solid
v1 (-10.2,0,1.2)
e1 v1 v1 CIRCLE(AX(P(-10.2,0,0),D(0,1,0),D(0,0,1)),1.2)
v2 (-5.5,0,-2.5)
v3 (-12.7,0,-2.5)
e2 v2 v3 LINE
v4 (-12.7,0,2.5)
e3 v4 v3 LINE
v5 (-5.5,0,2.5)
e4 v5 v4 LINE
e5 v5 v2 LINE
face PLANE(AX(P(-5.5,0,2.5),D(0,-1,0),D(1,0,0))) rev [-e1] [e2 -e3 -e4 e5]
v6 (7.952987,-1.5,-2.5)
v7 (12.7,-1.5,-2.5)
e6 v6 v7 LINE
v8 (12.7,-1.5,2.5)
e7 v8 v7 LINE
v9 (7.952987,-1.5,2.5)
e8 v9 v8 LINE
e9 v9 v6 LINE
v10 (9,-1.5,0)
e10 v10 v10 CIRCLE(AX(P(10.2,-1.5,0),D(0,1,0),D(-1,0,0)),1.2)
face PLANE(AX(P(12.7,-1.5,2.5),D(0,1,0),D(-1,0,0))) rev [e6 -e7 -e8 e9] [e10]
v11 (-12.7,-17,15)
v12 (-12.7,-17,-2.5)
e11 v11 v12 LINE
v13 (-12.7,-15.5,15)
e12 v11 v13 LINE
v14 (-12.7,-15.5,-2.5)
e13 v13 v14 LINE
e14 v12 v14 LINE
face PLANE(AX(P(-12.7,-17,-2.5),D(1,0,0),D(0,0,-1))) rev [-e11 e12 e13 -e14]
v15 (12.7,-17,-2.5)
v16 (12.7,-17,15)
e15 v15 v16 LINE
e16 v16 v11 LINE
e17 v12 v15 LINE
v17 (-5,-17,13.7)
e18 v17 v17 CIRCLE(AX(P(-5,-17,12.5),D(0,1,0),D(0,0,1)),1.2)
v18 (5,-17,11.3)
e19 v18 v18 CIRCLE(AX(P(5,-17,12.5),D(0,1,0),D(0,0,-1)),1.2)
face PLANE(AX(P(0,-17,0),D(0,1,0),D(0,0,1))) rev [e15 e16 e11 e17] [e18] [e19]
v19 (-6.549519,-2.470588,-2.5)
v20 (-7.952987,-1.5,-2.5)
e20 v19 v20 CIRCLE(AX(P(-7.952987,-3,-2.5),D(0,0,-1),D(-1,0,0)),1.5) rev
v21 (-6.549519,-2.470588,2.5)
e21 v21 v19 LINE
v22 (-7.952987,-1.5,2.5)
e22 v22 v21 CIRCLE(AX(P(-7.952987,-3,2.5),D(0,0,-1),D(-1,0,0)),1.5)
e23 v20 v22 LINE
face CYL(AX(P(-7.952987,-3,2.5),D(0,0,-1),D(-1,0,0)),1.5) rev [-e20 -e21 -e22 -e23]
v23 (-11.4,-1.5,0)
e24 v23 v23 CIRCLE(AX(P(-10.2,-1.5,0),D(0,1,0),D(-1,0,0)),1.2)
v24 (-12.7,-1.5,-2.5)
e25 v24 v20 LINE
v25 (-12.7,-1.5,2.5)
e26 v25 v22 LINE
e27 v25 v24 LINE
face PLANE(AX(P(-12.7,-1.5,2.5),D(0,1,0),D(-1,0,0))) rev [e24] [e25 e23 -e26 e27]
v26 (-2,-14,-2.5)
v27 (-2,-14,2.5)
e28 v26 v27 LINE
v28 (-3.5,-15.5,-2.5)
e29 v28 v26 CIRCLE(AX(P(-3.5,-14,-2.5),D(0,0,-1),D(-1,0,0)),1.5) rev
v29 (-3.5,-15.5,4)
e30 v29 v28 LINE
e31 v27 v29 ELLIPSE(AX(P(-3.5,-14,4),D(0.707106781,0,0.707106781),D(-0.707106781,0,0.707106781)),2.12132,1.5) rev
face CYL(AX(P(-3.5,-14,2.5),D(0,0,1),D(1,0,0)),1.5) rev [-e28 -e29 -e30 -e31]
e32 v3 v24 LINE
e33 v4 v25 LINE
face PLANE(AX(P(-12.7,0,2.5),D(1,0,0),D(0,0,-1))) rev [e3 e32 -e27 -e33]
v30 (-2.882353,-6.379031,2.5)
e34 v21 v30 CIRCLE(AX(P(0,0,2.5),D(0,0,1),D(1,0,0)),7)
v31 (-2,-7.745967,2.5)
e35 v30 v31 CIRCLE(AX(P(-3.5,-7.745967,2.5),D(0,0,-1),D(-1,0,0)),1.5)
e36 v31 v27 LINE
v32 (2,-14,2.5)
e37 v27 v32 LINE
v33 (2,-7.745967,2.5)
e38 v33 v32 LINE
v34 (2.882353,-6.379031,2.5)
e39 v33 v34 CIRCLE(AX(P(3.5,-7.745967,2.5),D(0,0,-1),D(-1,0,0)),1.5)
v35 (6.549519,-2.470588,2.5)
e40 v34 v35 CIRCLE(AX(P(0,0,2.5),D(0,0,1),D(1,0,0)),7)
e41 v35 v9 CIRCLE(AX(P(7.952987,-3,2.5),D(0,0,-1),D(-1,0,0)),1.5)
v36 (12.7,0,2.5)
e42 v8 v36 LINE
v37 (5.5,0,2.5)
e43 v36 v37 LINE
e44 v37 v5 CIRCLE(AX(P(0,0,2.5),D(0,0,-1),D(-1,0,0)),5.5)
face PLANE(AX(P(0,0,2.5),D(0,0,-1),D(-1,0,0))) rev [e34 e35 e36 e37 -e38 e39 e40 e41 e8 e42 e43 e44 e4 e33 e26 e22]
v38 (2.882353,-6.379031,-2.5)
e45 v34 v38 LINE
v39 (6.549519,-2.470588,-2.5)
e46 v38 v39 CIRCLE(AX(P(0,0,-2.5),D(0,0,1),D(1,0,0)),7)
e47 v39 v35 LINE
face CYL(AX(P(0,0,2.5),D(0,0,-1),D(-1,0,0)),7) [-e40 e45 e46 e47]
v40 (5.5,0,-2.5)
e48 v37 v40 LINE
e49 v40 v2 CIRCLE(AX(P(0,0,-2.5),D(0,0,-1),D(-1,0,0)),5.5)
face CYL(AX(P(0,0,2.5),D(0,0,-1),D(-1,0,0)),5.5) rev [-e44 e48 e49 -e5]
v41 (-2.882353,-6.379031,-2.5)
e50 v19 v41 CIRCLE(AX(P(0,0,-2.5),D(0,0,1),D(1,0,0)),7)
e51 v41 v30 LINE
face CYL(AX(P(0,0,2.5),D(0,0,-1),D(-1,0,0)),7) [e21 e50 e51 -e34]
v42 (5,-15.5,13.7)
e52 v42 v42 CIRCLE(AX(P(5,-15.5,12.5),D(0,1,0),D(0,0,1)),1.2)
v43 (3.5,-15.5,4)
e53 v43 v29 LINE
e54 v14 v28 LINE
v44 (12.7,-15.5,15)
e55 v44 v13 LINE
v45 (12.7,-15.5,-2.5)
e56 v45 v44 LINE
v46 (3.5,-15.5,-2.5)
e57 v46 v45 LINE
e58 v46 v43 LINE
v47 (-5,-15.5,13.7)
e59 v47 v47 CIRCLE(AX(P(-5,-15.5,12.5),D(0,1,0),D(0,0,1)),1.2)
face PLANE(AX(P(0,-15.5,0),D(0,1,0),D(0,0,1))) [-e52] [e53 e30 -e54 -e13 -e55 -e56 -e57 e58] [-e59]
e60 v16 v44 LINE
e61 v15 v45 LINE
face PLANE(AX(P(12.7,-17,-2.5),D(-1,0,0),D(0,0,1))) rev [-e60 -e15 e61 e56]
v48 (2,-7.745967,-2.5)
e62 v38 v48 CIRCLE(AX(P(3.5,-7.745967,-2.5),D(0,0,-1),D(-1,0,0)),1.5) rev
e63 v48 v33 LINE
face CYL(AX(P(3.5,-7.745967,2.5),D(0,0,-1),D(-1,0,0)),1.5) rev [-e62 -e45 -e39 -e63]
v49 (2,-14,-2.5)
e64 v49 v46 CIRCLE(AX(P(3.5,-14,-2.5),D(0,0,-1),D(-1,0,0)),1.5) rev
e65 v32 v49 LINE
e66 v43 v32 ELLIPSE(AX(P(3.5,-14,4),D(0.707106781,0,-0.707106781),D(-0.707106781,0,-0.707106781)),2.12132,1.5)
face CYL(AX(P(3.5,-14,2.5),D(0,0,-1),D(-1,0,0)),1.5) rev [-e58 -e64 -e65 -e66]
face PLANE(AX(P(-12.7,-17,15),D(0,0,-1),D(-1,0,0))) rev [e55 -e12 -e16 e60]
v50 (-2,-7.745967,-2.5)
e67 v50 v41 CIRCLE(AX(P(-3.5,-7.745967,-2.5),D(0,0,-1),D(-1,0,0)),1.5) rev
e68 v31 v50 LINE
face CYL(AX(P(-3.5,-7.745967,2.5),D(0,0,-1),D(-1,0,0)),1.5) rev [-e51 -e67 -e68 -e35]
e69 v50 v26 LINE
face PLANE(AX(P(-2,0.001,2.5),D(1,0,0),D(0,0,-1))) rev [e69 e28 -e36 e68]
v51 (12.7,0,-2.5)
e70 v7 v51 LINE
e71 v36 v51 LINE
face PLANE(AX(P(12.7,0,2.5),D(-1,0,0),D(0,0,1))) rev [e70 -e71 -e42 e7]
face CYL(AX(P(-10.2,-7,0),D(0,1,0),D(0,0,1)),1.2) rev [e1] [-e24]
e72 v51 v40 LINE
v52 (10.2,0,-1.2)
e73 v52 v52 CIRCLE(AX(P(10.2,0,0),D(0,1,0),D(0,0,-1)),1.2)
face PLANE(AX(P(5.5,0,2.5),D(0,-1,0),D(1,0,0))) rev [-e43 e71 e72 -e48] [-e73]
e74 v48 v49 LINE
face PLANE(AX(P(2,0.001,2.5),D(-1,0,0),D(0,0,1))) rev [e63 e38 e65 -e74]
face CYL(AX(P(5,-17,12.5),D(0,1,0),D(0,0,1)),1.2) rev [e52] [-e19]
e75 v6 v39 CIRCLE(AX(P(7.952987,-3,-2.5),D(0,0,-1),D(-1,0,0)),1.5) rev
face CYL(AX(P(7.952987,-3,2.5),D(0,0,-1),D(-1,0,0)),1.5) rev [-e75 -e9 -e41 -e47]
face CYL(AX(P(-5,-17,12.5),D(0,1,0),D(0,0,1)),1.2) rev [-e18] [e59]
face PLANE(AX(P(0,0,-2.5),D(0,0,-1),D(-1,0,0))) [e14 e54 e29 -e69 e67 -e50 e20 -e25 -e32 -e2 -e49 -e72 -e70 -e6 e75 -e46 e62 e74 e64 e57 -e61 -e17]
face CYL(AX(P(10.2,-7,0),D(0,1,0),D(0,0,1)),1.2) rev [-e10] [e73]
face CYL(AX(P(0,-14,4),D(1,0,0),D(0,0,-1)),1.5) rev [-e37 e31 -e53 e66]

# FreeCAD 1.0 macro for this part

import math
import FreeCAD as App
import Part
import Sketcher

V = App.Vector
Q = App.Units.Quantity


def edges_at(feature, points):
    """Names of the edges that pass closest to the given points."""
    edges = feature.Shape.Edges
    near = lambda p: min(range(len(edges)), key=lambda i: edges[i].distToShape(Part.Vertex(*p))[0])
    return sorted({f"Edge{near(p) + 1}" for p in points})

doc = App.newDocument("Part")
body = doc.addObject("PartDesign::Body", "Body")

# Sketch on XY plane
sketch1 = body.newObject("Sketcher::SketchObject", "Sketch")
sketch1.AttachmentSupport = (doc.getObject("XY_Plane"), [""])
sketch1.MapMode = "FlatFace"
sketch1.addGeometry(Part.LineSegment(V(12.7, 0, 0), V(5.5, 0, 0)), False)
sketch1.addGeometry(Part.ArcOfCircle(Part.Circle(V(0, 0, 0), V(0, 0, 1), 5.5), math.radians(180), math.radians(360)), False)
sketch1.addGeometry(Part.LineSegment(V(-5.5, 0, 0), V(-12.7, 0, 0)), False)
sketch1.addGeometry(Part.LineSegment(V(-12.7, 0, 0), V(-12.7, -1.5, 0)), False)
sketch1.addGeometry(Part.LineSegment(V(-12.7, -1.5, 0), V(-6.837397, -1.5, 0)), False)
sketch1.addGeometry(Part.ArcOfCircle(Part.Circle(V(0, 0, 0), V(0, 0, 1), 7), math.radians(-167.626375), math.radians(-12.373625)), False)
sketch1.addGeometry(Part.LineSegment(V(6.837397, -1.5, 0), V(12.7, -1.5, 0)), False)
sketch1.addGeometry(Part.LineSegment(V(12.7, -1.5, 0), V(12.7, 0, 0)), False)
sketch1.addConstraint(Sketcher.Constraint("Coincident", 0, 2, 1, 2))
sketch1.addConstraint(Sketcher.Constraint("Coincident", 1, 1, 2, 1))
sketch1.addConstraint(Sketcher.Constraint("Coincident", 2, 2, 3, 1))
sketch1.addConstraint(Sketcher.Constraint("Coincident", 3, 2, 4, 1))
sketch1.addConstraint(Sketcher.Constraint("Coincident", 4, 2, 5, 1))
sketch1.addConstraint(Sketcher.Constraint("Coincident", 5, 2, 6, 1))
sketch1.addConstraint(Sketcher.Constraint("Coincident", 6, 2, 7, 1))
sketch1.addConstraint(Sketcher.Constraint("Coincident", 7, 2, 0, 1))
sketch1.addConstraint(Sketcher.Constraint("Horizontal", 0))
sketch1.addConstraint(Sketcher.Constraint("Horizontal", 2))
sketch1.addConstraint(Sketcher.Constraint("Vertical", 3))
sketch1.addConstraint(Sketcher.Constraint("Horizontal", 4))
sketch1.addConstraint(Sketcher.Constraint("Horizontal", 6))
sketch1.addConstraint(Sketcher.Constraint("Vertical", 7))
sketch1.addConstraint(Sketcher.Constraint("Coincident", 1, 3, -1, 1))
sketch1.addConstraint(Sketcher.Constraint("Coincident", 5, 3, -1, 1))
sketch1.addConstraint(Sketcher.Constraint("Symmetric", 2, 2, 7, 2, -1, 1))
sketch1.addConstraint(Sketcher.Constraint("PointOnObject", 0, 2, -1))
sketch1.addConstraint(Sketcher.Constraint("Horizontal", 4, 2, 5, 2))
sketch1.addConstraint(Sketcher.Constraint("Radius", 5, Q("7 mm")))
sketch1.addConstraint(Sketcher.Constraint("Radius", 1, Q("5.5 mm")))
sketch1.addConstraint(Sketcher.Constraint("DistanceX", 0, 2, 0, 1, Q("7.2 mm")))
sketch1.addConstraint(Sketcher.Constraint("DistanceY", 3, 2, 3, 1, Q("1.5 mm")))
pad1 = body.newObject("PartDesign::Pad", "Pad")
pad1.Profile = sketch1
pad1.Length = 5
pad1.Midplane = True

# Sketch on XZ plane
sketch2 = body.newObject("Sketcher::SketchObject", "Sketch001")
sketch2.AttachmentSupport = (doc.getObject("XZ_Plane"), [""])
sketch2.MapMode = "FlatFace"
sketch2.addGeometry(Part.Circle(V(-10.2, 0, 0), V(0, 0, 1), 1.2), False)
sketch2.addGeometry(Part.Circle(V(10.2, 0, 0), V(0, 0, 1), 1.2), False)
sketch2.addConstraint(Sketcher.Constraint("Equal", 0, 1))
sketch2.addConstraint(Sketcher.Constraint("Symmetric", 0, 3, 1, 3, -1, 1))
sketch2.addConstraint(Sketcher.Constraint("PointOnObject", 0, 3, -1))
sketch2.addConstraint(Sketcher.Constraint("Diameter", 0, Q("2.4 mm")))
sketch2.addConstraint(Sketcher.Constraint("DistanceX", 0, 3, -1, 1, Q("10.2 mm")))
pocket1 = body.newObject("PartDesign::Pocket", "Pocket")
pocket1.Profile = sketch2
pocket1.Type = "ThroughAll"
pocket1.Reversed = True

# Sketch on XZ plane
sketch3 = body.newObject("Sketcher::SketchObject", "Sketch002")
sketch3.AttachmentSupport = (doc.getObject("XZ_Plane"), [""])
sketch3.MapMode = "FlatFace"
sketch3.AttachmentOffset = App.Placement(V(0, 0, 15.5), App.Rotation())
sketch3.addGeometry(Part.LineSegment(V(-2, -2.5, 0), V(-2, 2.5, 0)), False)
sketch3.addGeometry(Part.LineSegment(V(-2, 2.5, 0), V(2, 2.5, 0)), False)
sketch3.addGeometry(Part.LineSegment(V(2, 2.5, 0), V(2, -2.5, 0)), False)
sketch3.addGeometry(Part.LineSegment(V(2, -2.5, 0), V(-2, -2.5, 0)), False)
sketch3.addConstraint(Sketcher.Constraint("Coincident", 0, 2, 1, 1))
sketch3.addConstraint(Sketcher.Constraint("Coincident", 1, 2, 2, 1))
sketch3.addConstraint(Sketcher.Constraint("Coincident", 2, 2, 3, 1))
sketch3.addConstraint(Sketcher.Constraint("Coincident", 3, 2, 0, 1))
sketch3.addConstraint(Sketcher.Constraint("Vertical", 0))
sketch3.addConstraint(Sketcher.Constraint("Horizontal", 1))
sketch3.addConstraint(Sketcher.Constraint("Vertical", 2))
sketch3.addConstraint(Sketcher.Constraint("Horizontal", 3))
sketch3.addConstraint(Sketcher.Constraint("Symmetric", 0, 2, 2, 2, -1, 1))
sketch3.addConstraint(Sketcher.Constraint("DistanceX", 1, 1, 1, 2, Q("4 mm")))
sketch3.addConstraint(Sketcher.Constraint("DistanceY", 0, 1, 0, 2, Q("5 mm")))
pad2 = body.newObject("PartDesign::Pad", "Pad001")
pad2.Profile = sketch3
pad2.Length = 8.791796
pad2.Reversed = True

# Sketch on XZ plane
sketch4 = body.newObject("Sketcher::SketchObject", "Sketch003")
sketch4.AttachmentSupport = (doc.getObject("XZ_Plane"), [""])
sketch4.MapMode = "FlatFace"
sketch4.AttachmentOffset = App.Placement(V(0, 0, 15.5), App.Rotation())
sketch4.addGeometry(Part.LineSegment(V(-12.7, 15, 0), V(-12.7, -2.5, 0)), False)
sketch4.addGeometry(Part.LineSegment(V(-12.7, -2.5, 0), V(12.7, -2.5, 0)), False)
sketch4.addGeometry(Part.LineSegment(V(12.7, -2.5, 0), V(12.7, 15, 0)), False)
sketch4.addGeometry(Part.LineSegment(V(12.7, 15, 0), V(-12.7, 15, 0)), False)
sketch4.addConstraint(Sketcher.Constraint("Coincident", 0, 2, 1, 1))
sketch4.addConstraint(Sketcher.Constraint("Coincident", 1, 2, 2, 1))
sketch4.addConstraint(Sketcher.Constraint("Coincident", 2, 2, 3, 1))
sketch4.addConstraint(Sketcher.Constraint("Coincident", 3, 2, 0, 1))
sketch4.addConstraint(Sketcher.Constraint("Vertical", 0))
sketch4.addConstraint(Sketcher.Constraint("Horizontal", 1))
sketch4.addConstraint(Sketcher.Constraint("Vertical", 2))
sketch4.addConstraint(Sketcher.Constraint("Horizontal", 3))
sketch4.addConstraint(Sketcher.Constraint("DistanceX", 1, 1, 1, 2, Q("25.4 mm")))
sketch4.addConstraint(Sketcher.Constraint("DistanceY", 0, 2, 0, 1, Q("17.5 mm")))
sketch4.addConstraint(Sketcher.Constraint("DistanceY", -1, 1, 2, 2, Q("15 mm")))
sketch4.addConstraint(Sketcher.Constraint("DistanceX", 0, 2, -1, 1, Q("12.7 mm")))
pad3 = body.newObject("PartDesign::Pad", "Pad002")
pad3.Profile = sketch4
pad3.Length = 1.5
doc.recompute()

fillet = body.newObject("PartDesign::Fillet", "Fillet")
fillet.Base = (pad3, edges_at(pad3, [
    (6.837, -1.5, 0),
    (-6.837, -1.5, 0),
    (2, -15.5, 0),
    (-2, -15.5, 0),
    (0, -15.5, 2.5),
    (2, -6.708, 0),
    (-2, -6.708, 0),
]))
fillet.Radius = 1.5

# Sketch on XZ plane
sketch5 = body.newObject("Sketcher::SketchObject", "Sketch004")
sketch5.AttachmentSupport = (doc.getObject("XZ_Plane"), [""])
sketch5.MapMode = "FlatFace"
sketch5.addGeometry(Part.Circle(V(-5, 12.5, 0), V(0, 0, 1), 1.2), False)
sketch5.addGeometry(Part.Circle(V(5, 12.5, 0), V(0, 0, 1), 1.2), False)
sketch5.addConstraint(Sketcher.Constraint("Equal", 0, 1))
sketch5.addConstraint(Sketcher.Constraint("Symmetric", 0, 3, 1, 3, -2))
sketch5.addConstraint(Sketcher.Constraint("Diameter", 0, Q("2.4 mm")))
sketch5.addConstraint(Sketcher.Constraint("DistanceX", 0, 3, -1, 1, Q("5 mm")))
sketch5.addConstraint(Sketcher.Constraint("DistanceY", -1, 1, 0, 3, Q("12.5 mm")))
pocket2 = body.newObject("PartDesign::Pocket", "Pocket001")
pocket2.Profile = sketch5
pocket2.Type = "ThroughAll"
pocket2.Reversed = True

doc.recompute()
